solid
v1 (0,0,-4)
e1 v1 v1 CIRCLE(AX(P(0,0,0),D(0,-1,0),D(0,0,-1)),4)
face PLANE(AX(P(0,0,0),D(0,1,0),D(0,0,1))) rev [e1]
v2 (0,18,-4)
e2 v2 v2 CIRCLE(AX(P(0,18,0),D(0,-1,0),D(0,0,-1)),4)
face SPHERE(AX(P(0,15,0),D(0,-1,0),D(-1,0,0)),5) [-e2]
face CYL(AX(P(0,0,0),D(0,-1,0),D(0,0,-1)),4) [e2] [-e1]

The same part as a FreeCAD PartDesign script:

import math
import FreeCAD as App
import Part
import Sketcher
from FreeCAD import Vector

doc = App.newDocument("Part")
params = doc.addObject("Spreadsheet::Sheet", "Params")
for row, (alias, value) in enumerate([
    ("sketch1_radius", "5 mm"),
    ("sketch1_width", "4 mm"),
    ("sketch1_height", "20 mm"),
    ("revolution_angle", "360 deg"),
], start=1):
    params.set(f"A{row}", alias)
    params.set(f"B{row}", "=" + value)
    params.setAlias(f"B{row}", alias)

body = doc.addObject("PartDesign::Body", "Body")

# Sketch on XY plane
sketch1 = body.newObject("Sketcher::SketchObject", "Sketch")
sketch1.AttachmentSupport = (doc.getObject("XY_Plane"), [""])
sketch1.MapMode = "FlatFace"
sketch1.addGeometry(Part.LineSegment(Vector(-4, 0, 0), Vector(0, 0, 0)), False)
sketch1.addGeometry(Part.LineSegment(Vector(0, 0, 0), Vector(0, 20, 0)), False)
sketch1.addGeometry(Part.ArcOfCircle(Part.Circle(Vector(0, 15, 0), Vector(0, 0, 1), 5), math.radians(90), math.radians(143.130102)), False)
sketch1.addGeometry(Part.LineSegment(Vector(-4, 18, 0), Vector(-4, 0, 0)), False)
sketch1.addConstraint(Sketcher.Constraint("Coincident", 0, 2, 1, 1))
sketch1.addConstraint(Sketcher.Constraint("Coincident", 1, 2, 2, 1))
sketch1.addConstraint(Sketcher.Constraint("Coincident", 2, 2, 3, 1))
sketch1.addConstraint(Sketcher.Constraint("Coincident", 3, 2, 0, 1))
sketch1.addConstraint(Sketcher.Constraint("Horizontal", 0))
sketch1.addConstraint(Sketcher.Constraint("Vertical", 1))
sketch1.addConstraint(Sketcher.Constraint("Vertical", 3))
sketch1.addConstraint(Sketcher.Constraint("Coincident", 0, 2, -1, 1))
sketch1.addConstraint(Sketcher.Constraint("PointOnObject", 2, 3, -2))
sketch1.addConstraint(Sketcher.Constraint("Radius", 2, 5.0))
sketch1.addConstraint(Sketcher.Constraint("DistanceX", 0, 1, 0, 2, 4.0))
sketch1.addConstraint(Sketcher.Constraint("DistanceY", 1, 1, 1, 2, 20.0))
sketch1.setExpression("Constraints[9]", "Params.sketch1_radius")
sketch1.setExpression("Constraints[10]", "Params.sketch1_width")
sketch1.setExpression("Constraints[11]", "Params.sketch1_height")
revolution = body.newObject("PartDesign::Revolution", "Revolution")
revolution.Profile = sketch1
revolution.ReferenceAxis = (sketch1, ["V_Axis"])
revolution.setExpression("Angle", "Params.revolution_angle")

doc.recompute()
